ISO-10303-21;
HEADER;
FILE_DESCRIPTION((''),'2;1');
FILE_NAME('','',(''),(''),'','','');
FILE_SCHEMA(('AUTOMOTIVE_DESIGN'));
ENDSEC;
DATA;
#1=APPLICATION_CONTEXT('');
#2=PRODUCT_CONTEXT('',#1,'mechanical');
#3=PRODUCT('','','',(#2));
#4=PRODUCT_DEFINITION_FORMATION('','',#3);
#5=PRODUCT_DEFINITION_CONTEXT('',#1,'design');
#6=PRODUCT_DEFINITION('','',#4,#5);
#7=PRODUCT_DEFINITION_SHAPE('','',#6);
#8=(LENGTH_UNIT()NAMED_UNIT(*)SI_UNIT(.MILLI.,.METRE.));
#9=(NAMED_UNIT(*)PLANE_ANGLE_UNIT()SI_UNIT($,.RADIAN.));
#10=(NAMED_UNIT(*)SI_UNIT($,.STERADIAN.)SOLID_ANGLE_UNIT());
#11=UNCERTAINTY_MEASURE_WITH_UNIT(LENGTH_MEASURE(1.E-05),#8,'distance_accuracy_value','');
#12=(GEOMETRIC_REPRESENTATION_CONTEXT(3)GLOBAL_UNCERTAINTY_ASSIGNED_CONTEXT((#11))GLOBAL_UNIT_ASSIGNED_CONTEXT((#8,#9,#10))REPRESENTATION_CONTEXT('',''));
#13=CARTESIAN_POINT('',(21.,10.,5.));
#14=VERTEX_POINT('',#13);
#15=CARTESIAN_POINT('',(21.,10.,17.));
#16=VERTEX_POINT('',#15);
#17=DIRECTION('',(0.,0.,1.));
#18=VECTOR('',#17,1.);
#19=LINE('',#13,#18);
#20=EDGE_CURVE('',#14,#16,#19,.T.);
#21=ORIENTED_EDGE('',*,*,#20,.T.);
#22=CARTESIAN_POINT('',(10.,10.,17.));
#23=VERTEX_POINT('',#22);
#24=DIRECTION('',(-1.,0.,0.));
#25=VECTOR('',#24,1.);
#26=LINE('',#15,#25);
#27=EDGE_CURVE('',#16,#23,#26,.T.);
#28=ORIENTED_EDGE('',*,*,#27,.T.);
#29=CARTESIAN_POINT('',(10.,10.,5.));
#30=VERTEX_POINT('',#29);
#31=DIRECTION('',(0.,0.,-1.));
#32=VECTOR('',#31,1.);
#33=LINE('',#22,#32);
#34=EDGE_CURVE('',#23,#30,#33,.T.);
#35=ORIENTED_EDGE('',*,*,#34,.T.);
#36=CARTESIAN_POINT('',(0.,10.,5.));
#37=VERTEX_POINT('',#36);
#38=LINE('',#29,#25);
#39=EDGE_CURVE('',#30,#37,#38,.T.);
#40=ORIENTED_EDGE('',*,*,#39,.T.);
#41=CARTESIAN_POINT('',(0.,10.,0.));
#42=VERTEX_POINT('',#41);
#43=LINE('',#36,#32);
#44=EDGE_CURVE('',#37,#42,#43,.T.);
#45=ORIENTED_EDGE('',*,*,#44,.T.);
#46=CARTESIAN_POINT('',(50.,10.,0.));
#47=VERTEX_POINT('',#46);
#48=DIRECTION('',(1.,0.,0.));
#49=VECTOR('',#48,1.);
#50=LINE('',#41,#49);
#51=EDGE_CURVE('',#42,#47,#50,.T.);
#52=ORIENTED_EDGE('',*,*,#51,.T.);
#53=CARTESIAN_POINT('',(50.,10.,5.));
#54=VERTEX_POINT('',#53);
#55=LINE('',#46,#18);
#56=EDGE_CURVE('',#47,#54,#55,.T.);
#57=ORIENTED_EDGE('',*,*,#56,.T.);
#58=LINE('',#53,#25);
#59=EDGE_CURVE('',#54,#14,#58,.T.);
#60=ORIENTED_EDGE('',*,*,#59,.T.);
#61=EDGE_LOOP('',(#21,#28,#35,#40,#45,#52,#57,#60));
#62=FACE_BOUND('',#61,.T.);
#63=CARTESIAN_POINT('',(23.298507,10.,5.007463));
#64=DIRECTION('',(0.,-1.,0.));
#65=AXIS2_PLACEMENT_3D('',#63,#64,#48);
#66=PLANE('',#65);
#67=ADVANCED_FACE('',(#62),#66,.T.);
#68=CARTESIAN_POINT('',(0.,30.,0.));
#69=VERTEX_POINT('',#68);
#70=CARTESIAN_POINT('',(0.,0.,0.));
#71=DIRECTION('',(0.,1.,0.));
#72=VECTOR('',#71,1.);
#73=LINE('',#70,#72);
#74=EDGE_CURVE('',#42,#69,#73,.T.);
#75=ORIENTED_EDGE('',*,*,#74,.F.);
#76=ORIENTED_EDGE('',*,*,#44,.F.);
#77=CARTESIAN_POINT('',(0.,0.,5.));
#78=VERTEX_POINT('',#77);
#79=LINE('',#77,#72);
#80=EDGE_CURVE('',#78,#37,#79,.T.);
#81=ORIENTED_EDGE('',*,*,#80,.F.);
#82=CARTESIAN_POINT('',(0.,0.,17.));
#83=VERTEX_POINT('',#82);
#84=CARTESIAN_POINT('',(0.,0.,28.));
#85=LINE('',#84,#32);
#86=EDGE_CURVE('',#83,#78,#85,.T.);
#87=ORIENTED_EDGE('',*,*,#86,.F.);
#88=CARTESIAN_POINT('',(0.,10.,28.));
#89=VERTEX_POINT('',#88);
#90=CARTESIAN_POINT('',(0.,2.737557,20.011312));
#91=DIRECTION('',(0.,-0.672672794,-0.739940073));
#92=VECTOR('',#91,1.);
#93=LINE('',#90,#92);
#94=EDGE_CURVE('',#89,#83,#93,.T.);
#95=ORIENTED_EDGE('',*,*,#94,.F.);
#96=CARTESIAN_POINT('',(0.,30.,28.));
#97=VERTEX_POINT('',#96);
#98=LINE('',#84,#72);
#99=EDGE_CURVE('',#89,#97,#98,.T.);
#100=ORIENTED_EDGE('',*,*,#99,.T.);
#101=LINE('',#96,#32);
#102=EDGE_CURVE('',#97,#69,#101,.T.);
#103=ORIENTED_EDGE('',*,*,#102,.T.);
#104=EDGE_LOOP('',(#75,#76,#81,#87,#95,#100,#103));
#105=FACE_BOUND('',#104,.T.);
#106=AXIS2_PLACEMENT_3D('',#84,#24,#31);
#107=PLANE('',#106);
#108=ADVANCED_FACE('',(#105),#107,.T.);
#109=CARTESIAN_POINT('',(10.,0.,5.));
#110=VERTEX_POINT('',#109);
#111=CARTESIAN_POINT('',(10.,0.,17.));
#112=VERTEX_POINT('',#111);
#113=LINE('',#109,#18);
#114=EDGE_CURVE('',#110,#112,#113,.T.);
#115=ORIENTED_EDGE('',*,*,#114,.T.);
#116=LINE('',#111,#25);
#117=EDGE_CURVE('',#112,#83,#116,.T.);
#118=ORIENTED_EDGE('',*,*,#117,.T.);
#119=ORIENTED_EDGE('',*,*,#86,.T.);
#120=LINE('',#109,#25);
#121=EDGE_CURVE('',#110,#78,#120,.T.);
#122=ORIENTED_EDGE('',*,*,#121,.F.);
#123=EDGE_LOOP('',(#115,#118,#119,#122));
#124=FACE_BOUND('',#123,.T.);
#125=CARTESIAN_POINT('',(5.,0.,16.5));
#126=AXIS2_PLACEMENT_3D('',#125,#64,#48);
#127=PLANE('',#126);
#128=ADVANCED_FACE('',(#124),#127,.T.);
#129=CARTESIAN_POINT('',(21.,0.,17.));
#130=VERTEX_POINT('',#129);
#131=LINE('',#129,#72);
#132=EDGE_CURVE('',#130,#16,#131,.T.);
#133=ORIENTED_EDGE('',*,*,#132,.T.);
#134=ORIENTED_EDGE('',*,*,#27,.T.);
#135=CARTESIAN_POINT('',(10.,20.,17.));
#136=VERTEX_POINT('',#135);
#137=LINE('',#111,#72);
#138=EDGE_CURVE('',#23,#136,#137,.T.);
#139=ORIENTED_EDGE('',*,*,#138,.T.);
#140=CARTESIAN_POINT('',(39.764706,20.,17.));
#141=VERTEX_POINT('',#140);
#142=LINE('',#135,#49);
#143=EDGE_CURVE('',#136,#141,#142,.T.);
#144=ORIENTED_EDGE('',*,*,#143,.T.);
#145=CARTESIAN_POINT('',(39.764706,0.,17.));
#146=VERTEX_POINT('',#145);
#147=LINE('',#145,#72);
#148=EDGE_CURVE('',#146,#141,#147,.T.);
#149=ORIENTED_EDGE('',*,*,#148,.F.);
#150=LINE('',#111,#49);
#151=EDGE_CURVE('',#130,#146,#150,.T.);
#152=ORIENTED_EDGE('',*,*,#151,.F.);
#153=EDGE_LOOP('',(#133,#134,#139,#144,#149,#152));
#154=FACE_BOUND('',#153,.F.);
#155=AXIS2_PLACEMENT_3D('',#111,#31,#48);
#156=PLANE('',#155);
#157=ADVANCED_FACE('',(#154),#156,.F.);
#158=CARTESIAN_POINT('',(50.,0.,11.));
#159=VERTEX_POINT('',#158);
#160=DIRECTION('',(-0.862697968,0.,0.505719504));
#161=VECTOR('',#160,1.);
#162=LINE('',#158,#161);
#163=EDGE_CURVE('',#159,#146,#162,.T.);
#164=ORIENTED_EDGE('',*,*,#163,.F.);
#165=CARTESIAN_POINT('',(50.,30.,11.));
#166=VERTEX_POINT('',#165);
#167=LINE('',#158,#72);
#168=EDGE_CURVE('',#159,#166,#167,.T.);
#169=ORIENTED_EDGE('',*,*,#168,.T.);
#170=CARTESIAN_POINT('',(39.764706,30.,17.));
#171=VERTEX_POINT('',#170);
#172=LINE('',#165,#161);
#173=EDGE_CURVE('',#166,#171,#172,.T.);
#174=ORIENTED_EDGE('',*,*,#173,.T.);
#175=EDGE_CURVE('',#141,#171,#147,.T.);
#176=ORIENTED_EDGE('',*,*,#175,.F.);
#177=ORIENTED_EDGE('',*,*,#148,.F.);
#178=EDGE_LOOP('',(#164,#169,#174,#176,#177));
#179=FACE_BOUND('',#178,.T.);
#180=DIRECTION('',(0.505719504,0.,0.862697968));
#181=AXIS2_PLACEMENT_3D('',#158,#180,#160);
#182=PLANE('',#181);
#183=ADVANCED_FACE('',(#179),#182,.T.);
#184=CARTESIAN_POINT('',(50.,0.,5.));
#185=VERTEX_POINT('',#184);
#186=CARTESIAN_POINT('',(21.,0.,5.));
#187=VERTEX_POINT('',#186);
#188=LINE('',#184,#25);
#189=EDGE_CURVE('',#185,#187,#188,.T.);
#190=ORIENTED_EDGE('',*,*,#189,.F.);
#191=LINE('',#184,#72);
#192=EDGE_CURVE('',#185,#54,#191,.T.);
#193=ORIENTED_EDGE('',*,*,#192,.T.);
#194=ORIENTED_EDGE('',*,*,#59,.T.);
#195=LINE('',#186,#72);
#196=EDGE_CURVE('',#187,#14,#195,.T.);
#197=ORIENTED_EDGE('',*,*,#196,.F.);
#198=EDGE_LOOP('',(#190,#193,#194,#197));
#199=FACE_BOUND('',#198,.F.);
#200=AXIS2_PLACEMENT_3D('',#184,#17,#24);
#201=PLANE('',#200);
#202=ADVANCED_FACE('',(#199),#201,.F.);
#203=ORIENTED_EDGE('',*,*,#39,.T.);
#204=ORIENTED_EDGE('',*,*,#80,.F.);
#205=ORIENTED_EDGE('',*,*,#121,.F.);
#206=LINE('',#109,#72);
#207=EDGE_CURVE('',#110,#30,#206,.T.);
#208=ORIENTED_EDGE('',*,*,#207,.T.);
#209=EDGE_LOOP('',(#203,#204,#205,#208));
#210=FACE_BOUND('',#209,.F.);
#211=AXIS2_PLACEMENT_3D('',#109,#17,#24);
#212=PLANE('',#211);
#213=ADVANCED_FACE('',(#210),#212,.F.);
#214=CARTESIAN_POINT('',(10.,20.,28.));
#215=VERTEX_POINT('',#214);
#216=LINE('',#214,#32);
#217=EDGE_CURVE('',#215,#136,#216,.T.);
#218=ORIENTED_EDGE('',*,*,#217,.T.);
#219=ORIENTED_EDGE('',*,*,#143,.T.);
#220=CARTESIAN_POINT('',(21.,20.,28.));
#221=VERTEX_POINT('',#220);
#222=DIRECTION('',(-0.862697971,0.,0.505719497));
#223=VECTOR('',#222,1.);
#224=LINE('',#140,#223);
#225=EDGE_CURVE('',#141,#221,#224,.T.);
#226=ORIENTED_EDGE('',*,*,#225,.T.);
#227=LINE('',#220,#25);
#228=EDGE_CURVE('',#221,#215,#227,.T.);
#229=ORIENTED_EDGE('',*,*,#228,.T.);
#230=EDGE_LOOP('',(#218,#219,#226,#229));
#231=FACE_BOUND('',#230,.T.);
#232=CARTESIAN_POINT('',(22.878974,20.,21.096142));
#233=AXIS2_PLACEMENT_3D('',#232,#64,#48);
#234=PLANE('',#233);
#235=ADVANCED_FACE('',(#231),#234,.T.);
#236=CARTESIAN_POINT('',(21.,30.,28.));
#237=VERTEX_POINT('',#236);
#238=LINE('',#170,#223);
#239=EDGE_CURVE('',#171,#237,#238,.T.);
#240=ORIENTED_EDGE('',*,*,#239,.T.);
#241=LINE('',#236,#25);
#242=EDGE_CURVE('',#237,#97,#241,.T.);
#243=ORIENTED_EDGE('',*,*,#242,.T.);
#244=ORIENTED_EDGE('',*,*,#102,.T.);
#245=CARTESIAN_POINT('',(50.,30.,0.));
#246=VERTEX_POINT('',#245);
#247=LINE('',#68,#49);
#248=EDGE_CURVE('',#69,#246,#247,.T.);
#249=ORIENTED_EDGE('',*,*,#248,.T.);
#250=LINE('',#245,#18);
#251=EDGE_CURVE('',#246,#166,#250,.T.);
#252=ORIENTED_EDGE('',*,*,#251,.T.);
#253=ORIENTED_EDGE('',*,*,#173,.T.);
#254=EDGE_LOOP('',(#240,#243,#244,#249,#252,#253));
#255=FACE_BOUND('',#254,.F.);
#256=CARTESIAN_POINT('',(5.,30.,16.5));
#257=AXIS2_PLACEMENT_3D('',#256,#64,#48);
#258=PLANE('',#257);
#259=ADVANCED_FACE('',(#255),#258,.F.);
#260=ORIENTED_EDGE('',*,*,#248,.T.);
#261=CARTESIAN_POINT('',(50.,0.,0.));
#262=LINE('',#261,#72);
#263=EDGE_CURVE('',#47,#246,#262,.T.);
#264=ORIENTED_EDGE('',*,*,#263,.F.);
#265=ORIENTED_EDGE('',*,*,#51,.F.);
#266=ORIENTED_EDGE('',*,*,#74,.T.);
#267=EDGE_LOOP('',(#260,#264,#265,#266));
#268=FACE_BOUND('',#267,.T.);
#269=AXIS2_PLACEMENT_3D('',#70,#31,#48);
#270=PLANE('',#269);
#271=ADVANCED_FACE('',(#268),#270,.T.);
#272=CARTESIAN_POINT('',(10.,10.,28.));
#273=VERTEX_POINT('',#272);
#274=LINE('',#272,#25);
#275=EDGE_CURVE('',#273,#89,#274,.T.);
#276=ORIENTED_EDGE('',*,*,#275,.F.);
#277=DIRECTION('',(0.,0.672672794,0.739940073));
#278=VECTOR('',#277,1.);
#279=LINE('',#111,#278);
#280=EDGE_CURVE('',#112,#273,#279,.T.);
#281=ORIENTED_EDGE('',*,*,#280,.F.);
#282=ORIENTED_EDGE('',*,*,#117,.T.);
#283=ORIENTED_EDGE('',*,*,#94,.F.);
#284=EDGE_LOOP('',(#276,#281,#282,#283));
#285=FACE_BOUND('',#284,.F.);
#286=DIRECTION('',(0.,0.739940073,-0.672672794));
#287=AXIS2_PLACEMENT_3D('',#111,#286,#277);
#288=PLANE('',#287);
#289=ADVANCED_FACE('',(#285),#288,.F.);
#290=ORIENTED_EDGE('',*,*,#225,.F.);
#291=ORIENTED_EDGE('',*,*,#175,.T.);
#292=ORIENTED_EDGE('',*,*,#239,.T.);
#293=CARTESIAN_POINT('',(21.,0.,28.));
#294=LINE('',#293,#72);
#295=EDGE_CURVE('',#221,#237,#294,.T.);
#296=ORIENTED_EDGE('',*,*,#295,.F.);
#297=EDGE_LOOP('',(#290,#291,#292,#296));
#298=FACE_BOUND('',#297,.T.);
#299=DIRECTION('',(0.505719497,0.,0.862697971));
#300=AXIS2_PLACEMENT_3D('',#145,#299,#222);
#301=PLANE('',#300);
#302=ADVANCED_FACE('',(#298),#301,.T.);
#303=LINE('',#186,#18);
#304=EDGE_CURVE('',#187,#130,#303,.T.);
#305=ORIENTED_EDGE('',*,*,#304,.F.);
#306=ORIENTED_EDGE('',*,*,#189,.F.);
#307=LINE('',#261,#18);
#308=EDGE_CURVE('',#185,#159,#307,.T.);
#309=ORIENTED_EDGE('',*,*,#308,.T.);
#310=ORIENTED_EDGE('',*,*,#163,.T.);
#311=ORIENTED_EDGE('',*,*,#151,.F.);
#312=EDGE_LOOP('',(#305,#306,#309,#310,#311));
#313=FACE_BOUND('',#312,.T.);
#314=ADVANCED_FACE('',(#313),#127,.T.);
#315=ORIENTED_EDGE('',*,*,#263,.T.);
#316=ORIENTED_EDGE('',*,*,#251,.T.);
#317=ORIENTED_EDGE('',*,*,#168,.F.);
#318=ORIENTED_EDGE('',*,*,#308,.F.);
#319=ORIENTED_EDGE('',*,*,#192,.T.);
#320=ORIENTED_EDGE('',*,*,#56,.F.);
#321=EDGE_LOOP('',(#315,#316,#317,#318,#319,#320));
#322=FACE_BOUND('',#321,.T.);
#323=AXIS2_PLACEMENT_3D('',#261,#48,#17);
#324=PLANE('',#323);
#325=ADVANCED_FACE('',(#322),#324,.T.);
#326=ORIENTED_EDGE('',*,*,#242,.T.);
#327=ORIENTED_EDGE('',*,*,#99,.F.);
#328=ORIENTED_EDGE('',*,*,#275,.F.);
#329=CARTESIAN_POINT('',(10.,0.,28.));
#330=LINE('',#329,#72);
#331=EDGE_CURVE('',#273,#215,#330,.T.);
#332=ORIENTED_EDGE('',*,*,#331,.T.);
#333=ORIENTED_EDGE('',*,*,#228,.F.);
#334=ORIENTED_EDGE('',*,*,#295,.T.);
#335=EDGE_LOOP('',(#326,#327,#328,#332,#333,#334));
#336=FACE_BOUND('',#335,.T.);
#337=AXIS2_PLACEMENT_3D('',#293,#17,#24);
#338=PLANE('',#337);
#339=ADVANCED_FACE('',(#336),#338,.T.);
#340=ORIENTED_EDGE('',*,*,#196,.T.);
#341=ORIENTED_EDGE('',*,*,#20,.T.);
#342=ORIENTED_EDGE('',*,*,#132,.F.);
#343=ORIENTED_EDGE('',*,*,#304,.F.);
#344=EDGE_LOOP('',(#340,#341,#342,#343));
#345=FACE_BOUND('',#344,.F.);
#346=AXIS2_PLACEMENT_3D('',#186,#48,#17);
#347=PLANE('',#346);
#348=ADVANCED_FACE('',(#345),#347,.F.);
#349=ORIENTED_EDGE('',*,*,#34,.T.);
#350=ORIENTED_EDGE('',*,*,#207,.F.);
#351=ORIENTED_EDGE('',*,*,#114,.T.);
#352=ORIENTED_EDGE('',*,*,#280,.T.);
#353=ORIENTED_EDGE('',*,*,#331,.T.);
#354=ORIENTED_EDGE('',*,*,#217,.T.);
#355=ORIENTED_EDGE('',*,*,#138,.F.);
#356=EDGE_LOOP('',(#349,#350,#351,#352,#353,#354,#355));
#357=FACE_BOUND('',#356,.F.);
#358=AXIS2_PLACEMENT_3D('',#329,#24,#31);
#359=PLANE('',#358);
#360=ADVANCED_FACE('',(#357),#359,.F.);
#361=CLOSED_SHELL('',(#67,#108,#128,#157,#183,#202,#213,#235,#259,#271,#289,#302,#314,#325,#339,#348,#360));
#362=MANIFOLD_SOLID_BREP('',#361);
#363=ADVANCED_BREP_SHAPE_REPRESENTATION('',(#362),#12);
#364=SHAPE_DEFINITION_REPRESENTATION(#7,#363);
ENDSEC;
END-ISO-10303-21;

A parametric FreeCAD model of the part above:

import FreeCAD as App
import Part
import Sketcher

V = App.Vector

doc = App.newDocument("Part")
body = doc.addObject("PartDesign::Body", "Body")

# Sketch on XZ plane
sketch1 = body.newObject("Sketcher::SketchObject", "Sketch")
sketch1.AttachmentSupport = (doc.getObject("XZ_Plane"), [""])
sketch1.MapMode = "FlatFace"
sketch1.addGeometry([
    Part.LineSegment(V(0, 28, 0), V(0, 0, 0)),  # 0
    Part.LineSegment(V(0, 0, 0), V(50, 0, 0)),  # 1
    Part.LineSegment(V(50, 0, 0), V(50, 11, 0)),  # 2
    Part.LineSegment(V(50, 11, 0), V(40, 17, 0)),  # 3
    Part.LineSegment(V(40, 17, 0), V(21, 28, 0)),  # 4
    Part.LineSegment(V(21, 28, 0), V(0, 28, 0)),  # 5
], False)
sketch1.addConstraint([
    Sketcher.Constraint("Coincident", 0, 2, 1, 1),
    Sketcher.Constraint("Coincident", 1, 2, 2, 1),
    Sketcher.Constraint("Coincident", 2, 2, 3, 1),
    Sketcher.Constraint("Coincident", 3, 2, 4, 1),
    Sketcher.Constraint("Coincident", 4, 2, 5, 1),
    Sketcher.Constraint("Coincident", 5, 2, 0, 1),
    Sketcher.Constraint("Vertical", 0),
    Sketcher.Constraint("Horizontal", 1),
    Sketcher.Constraint("Vertical", 2),
    Sketcher.Constraint("Horizontal", 5),
    Sketcher.Constraint("Coincident", 0, 2, -1, 1),
    Sketcher.Constraint("Parallel", 3, 4),
    Sketcher.Constraint("DistanceX", 1, 1, 1, 2, 50.0),
    Sketcher.Constraint("DistanceX", 5, 2, 5, 1, 21.0),
    Sketcher.Constraint("DistanceY", 0, 2, 0, 1, 28.0),
    Sketcher.Constraint("DistanceY", 2, 1, 2, 2, 11.0),
    Sketcher.Constraint("DistanceY", -1, 1, 3, 2, 17.0),
])
pad1 = body.newObject("PartDesign::Pad", "Pad")
pad1.Profile = sketch1
pad1.Length = 30
pad1.Reversed = True

# Sketch on XZ plane
sketch2 = body.newObject("Sketcher::SketchObject", "Sketch001")
sketch2.AttachmentSupport = (doc.getObject("XZ_Plane"), [""])
sketch2.MapMode = "FlatFace"
sketch2.addGeometry([
    Part.LineSegment(V(0, 5, 0), V(0, 0, 0)),  # 0
    Part.LineSegment(V(0, 0, 0), V(50, 0, 0)),  # 1
    Part.LineSegment(V(50, 0, 0), V(50, 5, 0)),  # 2
    Part.LineSegment(V(50, 5, 0), V(21, 5, 0)),  # 3
    Part.LineSegment(V(21, 5, 0), V(21, 17, 0)),  # 4
    Part.LineSegment(V(21, 17, 0), V(10, 17, 0)),  # 5
    Part.LineSegment(V(10, 17, 0), V(10, 5, 0)),  # 6
    Part.LineSegment(V(10, 5, 0), V(0, 5, 0)),  # 7
], False)
sketch2.addConstraint([
    Sketcher.Constraint("Coincident", 0, 2, 1, 1),
    Sketcher.Constraint("Coincident", 1, 2, 2, 1),
    Sketcher.Constraint("Coincident", 2, 2, 3, 1),
    Sketcher.Constraint("Coincident", 3, 2, 4, 1),
    Sketcher.Constraint("Coincident", 4, 2, 5, 1),
    Sketcher.Constraint("Coincident", 5, 2, 6, 1),
    Sketcher.Constraint("Coincident", 6, 2, 7, 1),
    Sketcher.Constraint("Coincident", 7, 2, 0, 1),
    Sketcher.Constraint("Vertical", 0),
    Sketcher.Constraint("Horizontal", 1),
    Sketcher.Constraint("Vertical", 2),
    Sketcher.Constraint("Horizontal", 3),
    Sketcher.Constraint("Vertical", 4),
    Sketcher.Constraint("Horizontal", 5),
    Sketcher.Constraint("Vertical", 6),
    Sketcher.Constraint("Horizontal", 7),
    Sketcher.Constraint("Coincident", 0, 2, -1, 1),
    Sketcher.Constraint("Horizontal", 3, 2, 6, 2),
    Sketcher.Constraint("DistanceX", 1, 1, 1, 2, 50.0),
    Sketcher.Constraint("DistanceX", 3, 2, 3, 1, 29.0),
    Sketcher.Constraint("DistanceX", 5, 2, 5, 1, 11.0),
    Sketcher.Constraint("DistanceY", 0, 2, 0, 1, 5.0),
    Sketcher.Constraint("DistanceY", 4, 1, 4, 2, 12.0),
])
pocket1 = body.newObject("PartDesign::Pocket", "Pocket")
pocket1.Profile = sketch2
pocket1.Length = 10

# Sketch on XZ plane
sketch3 = body.newObject("Sketcher::SketchObject", "Sketch002")
sketch3.AttachmentSupport = (doc.getObject("XZ_Plane"), [""])
sketch3.MapMode = "FlatFace"
sketch3.addGeometry([
    Part.LineSegment(V(21, 28, 0), V(10, 28, 0)),
    Part.LineSegment(V(10, 28, 0), V(10, 17, 0)),
    Part.LineSegment(V(10, 17, 0), V(40, 17, 0)),
    Part.LineSegment(V(40, 17, 0), V(21, 28, 0)),
], False)
sketch3.addConstraint([
    Sketcher.Constraint("Coincident", 0, 2, 1, 1),
    Sketcher.Constraint("Coincident", 1, 2, 2, 1),
    Sketcher.Constraint("Coincident", 2, 2, 3, 1),
    Sketcher.Constraint("Coincident", 3, 2, 0, 1),
    Sketcher.Constraint("Horizontal", 0),
    Sketcher.Constraint("Vertical", 1),
    Sketcher.Constraint("Horizontal", 2),
    Sketcher.Constraint("Equal", 0, 1),
    Sketcher.Constraint("DistanceX", 0, 2, 0, 1, 11.0),
    Sketcher.Constraint("DistanceX", -1, 1, 0, 2, 10.0),
    Sketcher.Constraint("DistanceY", -1, 1, 0, 2, 28.0),
    Sketcher.Constraint("Distance", 3, 21.751188),
])
pocket2 = body.newObject("PartDesign::Pocket", "Pocket001")
pocket2.Profile = sketch3
pocket2.Length = 20

# Sketch on YZ plane
sketch4 = body.newObject("Sketcher::SketchObject", "Sketch003")
sketch4.AttachmentSupport = (doc.getObject("YZ_Plane"), [""])
sketch4.MapMode = "FlatFace"
sketch4.AttachmentOffset = App.Placement(V(0, 0, 10), App.Rotation())
sketch4.addGeometry([
    Part.LineSegment(V(0, 17, 0), V(10, 28, 0)),
    Part.LineSegment(V(10, 28, 0), V(0, 28, 0)),
    Part.LineSegment(V(0, 28, 0), V(0, 17, 0)),
], False)
sketch4.addConstraint([
    Sketcher.Constraint("Coincident", 0, 2, 1, 1),
    Sketcher.Constraint("Coincident", 1, 2, 2, 1),
    Sketcher.Constraint("Coincident", 2, 2, 0, 1),
    Sketcher.Constraint("Horizontal", 1),
    Sketcher.Constraint("Vertical", 2),
    Sketcher.Constraint("PointOnObject", 1, 2, -2),
    Sketcher.Constraint("DistanceX", 1, 2, 1, 1, 10.0),
    Sketcher.Constraint("DistanceY", 2, 2, 2, 1, 11.0),
    Sketcher.Constraint("DistanceY", -1, 1, 0, 2, 28.0),
])
pocket3 = body.newObject("PartDesign::Pocket", "Pocket002")
pocket3.Profile = sketch4
pocket3.Type = "ThroughAll"

doc.recompute()
